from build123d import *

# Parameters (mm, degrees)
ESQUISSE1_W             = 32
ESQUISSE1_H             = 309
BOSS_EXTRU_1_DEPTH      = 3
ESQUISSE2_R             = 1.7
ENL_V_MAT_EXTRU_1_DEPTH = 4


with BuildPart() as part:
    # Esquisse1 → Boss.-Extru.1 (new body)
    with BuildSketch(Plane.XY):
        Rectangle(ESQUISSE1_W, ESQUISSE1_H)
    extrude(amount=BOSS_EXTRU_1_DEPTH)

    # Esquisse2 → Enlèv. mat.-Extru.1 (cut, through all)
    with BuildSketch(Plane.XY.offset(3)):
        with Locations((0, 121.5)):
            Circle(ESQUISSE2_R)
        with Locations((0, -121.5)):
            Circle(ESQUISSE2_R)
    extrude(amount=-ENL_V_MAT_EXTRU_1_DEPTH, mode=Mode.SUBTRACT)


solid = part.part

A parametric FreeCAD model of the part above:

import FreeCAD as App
import Part
import Sketcher

V = App.Vector
Q = App.Units.Quantity

doc = App.newDocument("Part")
body = doc.addObject("PartDesign::Body", "Body")

# Sketch on XY plane
sketch1 = body.newObject("Sketcher::SketchObject", "Sketch")
sketch1.AttachmentSupport = (doc.getObject("XY_Plane"), [""])
sketch1.MapMode = "FlatFace"
sketch1.addGeometry(Part.LineSegment(V(-16, 154, 0), V(-16, -154, 0)), False)
sketch1.addGeometry(Part.LineSegment(V(-16, -154, 0), V(16, -154, 0)), False)
sketch1.addGeometry(Part.LineSegment(V(16, -154, 0), V(16, 154, 0)), False)
sketch1.addGeometry(Part.LineSegment(V(16, 154, 0), V(-16, 154, 0)), False)
sketch1.addConstraint(Sketcher.Constraint("Coincident", 0, 2, 1, 1))
sketch1.addConstraint(Sketcher.Constraint("Coincident", 1, 2, 2, 1))
sketch1.addConstraint(Sketcher.Constraint("Coincident", 2, 2, 3, 1))
sketch1.addConstraint(Sketcher.Constraint("Coincident", 3, 2, 0, 1))
sketch1.addConstraint(Sketcher.Constraint("Vertical", 0))
sketch1.addConstraint(Sketcher.Constraint("Horizontal", 1))
sketch1.addConstraint(Sketcher.Constraint("Vertical", 2))
sketch1.addConstraint(Sketcher.Constraint("Horizontal", 3))
sketch1.addConstraint(Sketcher.Constraint("Symmetric", 0, 2, 2, 2, -1, 1))
sketch1.addConstraint(Sketcher.Constraint("DistanceX", 1, 1, 1, 2, Q("32 mm")))
sketch1.addConstraint(Sketcher.Constraint("DistanceY", 0, 2, 0, 1, Q("309 mm")))
pad1 = body.newObject("PartDesign::Pad", "Pad")
pad1.Profile = sketch1
pad1.Length = 3

# Sketch on XY plane
sketch2 = body.newObject("Sketcher::SketchObject", "Sketch001")
sketch2.AttachmentSupport = (doc.getObject("XY_Plane"), [""])
sketch2.MapMode = "FlatFace"
sketch2.AttachmentOffset = App.Placement(V(0, 0, 3), App.Rotation())
sketch2.addGeometry(Part.Circle(V(0, 121.5, 0), V(0, 0, 1), 1.7), False)
sketch2.addGeometry(Part.Circle(V(0, -121.5, 0), V(0, 0, 1), 1.7), False)
sketch2.addConstraint(Sketcher.Constraint("Equal", 0, 1))
sketch2.addConstraint(Sketcher.Constraint("Symmetric", 0, 3, 1, 3, -1, 1))
sketch2.addConstraint(Sketcher.Constraint("PointOnObject", 0, 3, -2))
sketch2.addConstraint(Sketcher.Constraint("Diameter", 0, Q("3.4 mm")))
sketch2.addConstraint(Sketcher.Constraint("DistanceY", 1, 3, 0, 3, Q("243 mm")))
pocket1 = body.newObject("PartDesign::Pocket", "Pocket")
pocket1.Profile = sketch2
pocket1.Type = "ThroughAll"

doc.recompute()
